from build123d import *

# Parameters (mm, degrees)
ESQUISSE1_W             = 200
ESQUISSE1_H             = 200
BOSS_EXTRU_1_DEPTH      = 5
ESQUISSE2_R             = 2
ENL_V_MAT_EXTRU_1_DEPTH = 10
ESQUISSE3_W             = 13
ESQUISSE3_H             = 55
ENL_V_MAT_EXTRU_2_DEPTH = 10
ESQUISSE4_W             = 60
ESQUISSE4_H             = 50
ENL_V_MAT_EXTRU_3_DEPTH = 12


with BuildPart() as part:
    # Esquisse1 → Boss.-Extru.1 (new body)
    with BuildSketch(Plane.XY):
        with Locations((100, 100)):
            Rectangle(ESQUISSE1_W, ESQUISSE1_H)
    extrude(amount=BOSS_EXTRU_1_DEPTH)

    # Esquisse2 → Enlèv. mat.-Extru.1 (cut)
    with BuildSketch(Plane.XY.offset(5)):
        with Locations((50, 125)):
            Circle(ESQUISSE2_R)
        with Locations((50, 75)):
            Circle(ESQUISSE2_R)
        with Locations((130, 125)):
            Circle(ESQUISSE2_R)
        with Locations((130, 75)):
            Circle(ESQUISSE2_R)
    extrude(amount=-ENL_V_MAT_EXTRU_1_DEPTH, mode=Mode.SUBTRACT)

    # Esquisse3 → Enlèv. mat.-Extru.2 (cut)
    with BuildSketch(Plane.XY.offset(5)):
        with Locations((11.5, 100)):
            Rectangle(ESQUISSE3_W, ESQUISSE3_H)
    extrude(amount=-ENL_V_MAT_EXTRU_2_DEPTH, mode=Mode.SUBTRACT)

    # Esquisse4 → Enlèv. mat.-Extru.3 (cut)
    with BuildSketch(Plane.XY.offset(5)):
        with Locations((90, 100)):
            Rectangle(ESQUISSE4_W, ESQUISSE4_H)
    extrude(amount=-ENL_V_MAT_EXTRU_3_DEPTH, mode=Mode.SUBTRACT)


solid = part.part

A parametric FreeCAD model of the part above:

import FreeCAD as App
import Part
import Sketcher
Q = App.Units.Quantity

doc = App.newDocument("Part")
params = doc.addObject("Spreadsheet::Sheet", "Params")
for row, (alias, value) in enumerate([
    ("sketch1_width", "200 mm"),
    ("pad1_length", "5 mm"),
    ("sketch2_diameter", "4 mm"),
    ("pocket1_length", "10 mm"),
    ("sketch3_width", "13 mm"),
    ("sketch3_height", "55 mm"),
    ("pocket2_length", "10 mm"),
    ("sketch4_width", "60 mm"),
    ("sketch4_height", "50 mm"),
    ("pocket3_length", "12 mm"),
], start=1):
    params.set(f"A{row}", alias)
    params.set(f"B{row}", "=" + value)
    params.setAlias(f"B{row}", alias)

body = doc.addObject("PartDesign::Body", "Body")

sketch1 = body.newObject("Sketcher::SketchObject", "Sketch")
sketch1.AttachmentSupport = (doc.getObject("XY_Plane"), [""])
sketch1.MapMode = "FlatFace"
sketch1.addGeometry([
    Part.LineSegment(App.Vector(0, 200, 0), App.Vector(0, 0, 0)),
    Part.LineSegment(App.Vector(0, 0, 0), App.Vector(200, 0, 0)),
    Part.LineSegment(App.Vector(200, 0, 0), App.Vector(200, 200, 0)),
    Part.LineSegment(App.Vector(200, 200, 0), App.Vector(0, 200, 0)),
], False)
sketch1.addConstraint([
    Sketcher.Constraint("Coincident", 0, 2, 1, 1),
    Sketcher.Constraint("Coincident", 1, 2, 2, 1),
    Sketcher.Constraint("Coincident", 2, 2, 3, 1),
    Sketcher.Constraint("Coincident", 3, 2, 0, 1),
    Sketcher.Constraint("Vertical", 0),
    Sketcher.Constraint("Horizontal", 1),
    Sketcher.Constraint("Vertical", 2),
    Sketcher.Constraint("Horizontal", 3),
    Sketcher.Constraint("Coincident", 0, 2, -1, 1),
    Sketcher.Constraint("Equal", 3, 0),
    Sketcher.Constraint("DistanceX", 1, 1, 1, 2, Q("200 mm")),
])
sketch1.setExpression("Constraints[10]", "Params.sketch1_width")
pad1 = body.newObject("PartDesign::Pad", "Pad")
pad1.Profile = sketch1
pad1.setExpression("Length", "Params.pad1_length")

sketch2 = body.newObject("Sketcher::SketchObject", "Sketch001")
sketch2.AttachmentSupport = (doc.getObject("XY_Plane"), [""])
sketch2.MapMode = "FlatFace"
sketch2.AttachmentOffset = App.Placement(App.Vector(0, 0, 5), App.Rotation())
sketch2.addGeometry([
    Part.Circle(App.Vector(50, 125, 0), App.Vector(0, 0, 1), 2),
    Part.Circle(App.Vector(50, 75, 0), App.Vector(0, 0, 1), 2),
    Part.Circle(App.Vector(130, 125, 0), App.Vector(0, 0, 1), 2),
    Part.Circle(App.Vector(130, 75, 0), App.Vector(0, 0, 1), 2),
], False)
sketch2.addConstraint([
    Sketcher.Constraint("Equal", 0, 1),
    Sketcher.Constraint("Equal", 1, 2),
    Sketcher.Constraint("Equal", 2, 3),
    Sketcher.Constraint("Horizontal", 0, 3, 2, 3),
    Sketcher.Constraint("Horizontal", 1, 3, 3, 3),
    Sketcher.Constraint("Vertical", 0, 3, 1, 3),
    Sketcher.Constraint("Vertical", 2, 3, 3, 3),
    Sketcher.Constraint("Diameter", 0, Q("4 mm")),
    Sketcher.Constraint("DistanceX", -1, 1, 0, 3, Q("50 mm")),
    Sketcher.Constraint("DistanceY", -1, 1, 0, 3, Q("125 mm")),
    Sketcher.Constraint("DistanceY", -1, 1, 1, 3, Q("75 mm")),
    Sketcher.Constraint("DistanceX", -1, 1, 2, 3, Q("130 mm")),
])
sketch2.setExpression("Constraints[7]", "Params.sketch2_diameter")
pocket1 = body.newObject("PartDesign::Pocket", "Pocket")
pocket1.Profile = sketch2
pocket1.setExpression("Length", "Params.pocket1_length")

sketch3 = body.newObject("Sketcher::SketchObject", "Sketch002")
sketch3.AttachmentSupport = (doc.getObject("XY_Plane"), [""])
sketch3.MapMode = "FlatFace"
sketch3.AttachmentOffset = App.Placement(App.Vector(0, 0, 5), App.Rotation())
sketch3.addGeometry([
    Part.LineSegment(App.Vector(5, 127.5, 0), App.Vector(5, 72.5, 0)),
    Part.LineSegment(App.Vector(5, 72.5, 0), App.Vector(18, 72.5, 0)),
    Part.LineSegment(App.Vector(18, 72.5, 0), App.Vector(18, 127.5, 0)),
    Part.LineSegment(App.Vector(18, 127.5, 0), App.Vector(5, 127.5, 0)),
], False)
sketch3.addConstraint([
    Sketcher.Constraint("Coincident", 0, 2, 1, 1),
    Sketcher.Constraint("Coincident", 1, 2, 2, 1),
    Sketcher.Constraint("Coincident", 2, 2, 3, 1),
    Sketcher.Constraint("Coincident", 3, 2, 0, 1),
    Sketcher.Constraint("Vertical", 0),
    Sketcher.Constraint("Horizontal", 1),
    Sketcher.Constraint("Vertical", 2),
    Sketcher.Constraint("Horizontal", 3),
    Sketcher.Constraint("DistanceX", 1, 1, 1, 2, Q("13 mm")),
    Sketcher.Constraint("DistanceY", 0, 2, 0, 1, Q("55 mm")),
    Sketcher.Constraint("DistanceX", -1, 1, 0, 2, Q("5 mm")),
    Sketcher.Constraint("DistanceY", -1, 1, 0, 2, Q("72.5 mm")),
])
sketch3.setExpression("Constraints[8]", "Params.sketch3_width")
sketch3.setExpression("Constraints[9]", "Params.sketch3_height")
pocket2 = body.newObject("PartDesign::Pocket", "Pocket001")
pocket2.Profile = sketch3
pocket2.setExpression("Length", "Params.pocket2_length")

sketch4 = body.newObject("Sketcher::SketchObject", "Sketch003")
sketch4.AttachmentSupport = (doc.getObject("XY_Plane"), [""])
sketch4.MapMode = "FlatFace"
sketch4.AttachmentOffset = App.Placement(App.Vector(0, 0, 5), App.Rotation())
sketch4.addGeometry([
    Part.LineSegment(App.Vector(60, 125, 0), App.Vector(60, 75, 0)),
    Part.LineSegment(App.Vector(60, 75, 0), App.Vector(120, 75, 0)),
    Part.LineSegment(App.Vector(120, 75, 0), App.Vector(120, 125, 0)),
    Part.LineSegment(App.Vector(120, 125, 0), App.Vector(60, 125, 0)),
], False)
sketch4.addConstraint([
    Sketcher.Constraint("Coincident", 0, 2, 1, 1),
    Sketcher.Constraint("Coincident", 1, 2, 2, 1),
    Sketcher.Constraint("Coincident", 2, 2, 3, 1),
    Sketcher.Constraint("Coincident", 3, 2, 0, 1),
    Sketcher.Constraint("Vertical", 0),
    Sketcher.Constraint("Horizontal", 1),
    Sketcher.Constraint("Vertical", 2),
    Sketcher.Constraint("Horizontal", 3),
    Sketcher.Constraint("DistanceX", 1, 1, 1, 2, Q("60 mm")),
    Sketcher.Constraint("DistanceY", 0, 2, 0, 1, Q("50 mm")),
    Sketcher.Constraint("DistanceX", -1, 1, 0, 2, Q("60 mm")),
    Sketcher.Constraint("DistanceY", -1, 1, 0, 2, Q("75 mm")),
])
sketch4.setExpression("Constraints[8]", "Params.sketch4_width")
sketch4.setExpression("Constraints[9]", "Params.sketch4_height")
pocket3 = body.newObject("PartDesign::Pocket", "Pocket002")
pocket3.Profile = sketch4
pocket3.setExpression("Length", "Params.pocket3_length")

doc.recompute()
